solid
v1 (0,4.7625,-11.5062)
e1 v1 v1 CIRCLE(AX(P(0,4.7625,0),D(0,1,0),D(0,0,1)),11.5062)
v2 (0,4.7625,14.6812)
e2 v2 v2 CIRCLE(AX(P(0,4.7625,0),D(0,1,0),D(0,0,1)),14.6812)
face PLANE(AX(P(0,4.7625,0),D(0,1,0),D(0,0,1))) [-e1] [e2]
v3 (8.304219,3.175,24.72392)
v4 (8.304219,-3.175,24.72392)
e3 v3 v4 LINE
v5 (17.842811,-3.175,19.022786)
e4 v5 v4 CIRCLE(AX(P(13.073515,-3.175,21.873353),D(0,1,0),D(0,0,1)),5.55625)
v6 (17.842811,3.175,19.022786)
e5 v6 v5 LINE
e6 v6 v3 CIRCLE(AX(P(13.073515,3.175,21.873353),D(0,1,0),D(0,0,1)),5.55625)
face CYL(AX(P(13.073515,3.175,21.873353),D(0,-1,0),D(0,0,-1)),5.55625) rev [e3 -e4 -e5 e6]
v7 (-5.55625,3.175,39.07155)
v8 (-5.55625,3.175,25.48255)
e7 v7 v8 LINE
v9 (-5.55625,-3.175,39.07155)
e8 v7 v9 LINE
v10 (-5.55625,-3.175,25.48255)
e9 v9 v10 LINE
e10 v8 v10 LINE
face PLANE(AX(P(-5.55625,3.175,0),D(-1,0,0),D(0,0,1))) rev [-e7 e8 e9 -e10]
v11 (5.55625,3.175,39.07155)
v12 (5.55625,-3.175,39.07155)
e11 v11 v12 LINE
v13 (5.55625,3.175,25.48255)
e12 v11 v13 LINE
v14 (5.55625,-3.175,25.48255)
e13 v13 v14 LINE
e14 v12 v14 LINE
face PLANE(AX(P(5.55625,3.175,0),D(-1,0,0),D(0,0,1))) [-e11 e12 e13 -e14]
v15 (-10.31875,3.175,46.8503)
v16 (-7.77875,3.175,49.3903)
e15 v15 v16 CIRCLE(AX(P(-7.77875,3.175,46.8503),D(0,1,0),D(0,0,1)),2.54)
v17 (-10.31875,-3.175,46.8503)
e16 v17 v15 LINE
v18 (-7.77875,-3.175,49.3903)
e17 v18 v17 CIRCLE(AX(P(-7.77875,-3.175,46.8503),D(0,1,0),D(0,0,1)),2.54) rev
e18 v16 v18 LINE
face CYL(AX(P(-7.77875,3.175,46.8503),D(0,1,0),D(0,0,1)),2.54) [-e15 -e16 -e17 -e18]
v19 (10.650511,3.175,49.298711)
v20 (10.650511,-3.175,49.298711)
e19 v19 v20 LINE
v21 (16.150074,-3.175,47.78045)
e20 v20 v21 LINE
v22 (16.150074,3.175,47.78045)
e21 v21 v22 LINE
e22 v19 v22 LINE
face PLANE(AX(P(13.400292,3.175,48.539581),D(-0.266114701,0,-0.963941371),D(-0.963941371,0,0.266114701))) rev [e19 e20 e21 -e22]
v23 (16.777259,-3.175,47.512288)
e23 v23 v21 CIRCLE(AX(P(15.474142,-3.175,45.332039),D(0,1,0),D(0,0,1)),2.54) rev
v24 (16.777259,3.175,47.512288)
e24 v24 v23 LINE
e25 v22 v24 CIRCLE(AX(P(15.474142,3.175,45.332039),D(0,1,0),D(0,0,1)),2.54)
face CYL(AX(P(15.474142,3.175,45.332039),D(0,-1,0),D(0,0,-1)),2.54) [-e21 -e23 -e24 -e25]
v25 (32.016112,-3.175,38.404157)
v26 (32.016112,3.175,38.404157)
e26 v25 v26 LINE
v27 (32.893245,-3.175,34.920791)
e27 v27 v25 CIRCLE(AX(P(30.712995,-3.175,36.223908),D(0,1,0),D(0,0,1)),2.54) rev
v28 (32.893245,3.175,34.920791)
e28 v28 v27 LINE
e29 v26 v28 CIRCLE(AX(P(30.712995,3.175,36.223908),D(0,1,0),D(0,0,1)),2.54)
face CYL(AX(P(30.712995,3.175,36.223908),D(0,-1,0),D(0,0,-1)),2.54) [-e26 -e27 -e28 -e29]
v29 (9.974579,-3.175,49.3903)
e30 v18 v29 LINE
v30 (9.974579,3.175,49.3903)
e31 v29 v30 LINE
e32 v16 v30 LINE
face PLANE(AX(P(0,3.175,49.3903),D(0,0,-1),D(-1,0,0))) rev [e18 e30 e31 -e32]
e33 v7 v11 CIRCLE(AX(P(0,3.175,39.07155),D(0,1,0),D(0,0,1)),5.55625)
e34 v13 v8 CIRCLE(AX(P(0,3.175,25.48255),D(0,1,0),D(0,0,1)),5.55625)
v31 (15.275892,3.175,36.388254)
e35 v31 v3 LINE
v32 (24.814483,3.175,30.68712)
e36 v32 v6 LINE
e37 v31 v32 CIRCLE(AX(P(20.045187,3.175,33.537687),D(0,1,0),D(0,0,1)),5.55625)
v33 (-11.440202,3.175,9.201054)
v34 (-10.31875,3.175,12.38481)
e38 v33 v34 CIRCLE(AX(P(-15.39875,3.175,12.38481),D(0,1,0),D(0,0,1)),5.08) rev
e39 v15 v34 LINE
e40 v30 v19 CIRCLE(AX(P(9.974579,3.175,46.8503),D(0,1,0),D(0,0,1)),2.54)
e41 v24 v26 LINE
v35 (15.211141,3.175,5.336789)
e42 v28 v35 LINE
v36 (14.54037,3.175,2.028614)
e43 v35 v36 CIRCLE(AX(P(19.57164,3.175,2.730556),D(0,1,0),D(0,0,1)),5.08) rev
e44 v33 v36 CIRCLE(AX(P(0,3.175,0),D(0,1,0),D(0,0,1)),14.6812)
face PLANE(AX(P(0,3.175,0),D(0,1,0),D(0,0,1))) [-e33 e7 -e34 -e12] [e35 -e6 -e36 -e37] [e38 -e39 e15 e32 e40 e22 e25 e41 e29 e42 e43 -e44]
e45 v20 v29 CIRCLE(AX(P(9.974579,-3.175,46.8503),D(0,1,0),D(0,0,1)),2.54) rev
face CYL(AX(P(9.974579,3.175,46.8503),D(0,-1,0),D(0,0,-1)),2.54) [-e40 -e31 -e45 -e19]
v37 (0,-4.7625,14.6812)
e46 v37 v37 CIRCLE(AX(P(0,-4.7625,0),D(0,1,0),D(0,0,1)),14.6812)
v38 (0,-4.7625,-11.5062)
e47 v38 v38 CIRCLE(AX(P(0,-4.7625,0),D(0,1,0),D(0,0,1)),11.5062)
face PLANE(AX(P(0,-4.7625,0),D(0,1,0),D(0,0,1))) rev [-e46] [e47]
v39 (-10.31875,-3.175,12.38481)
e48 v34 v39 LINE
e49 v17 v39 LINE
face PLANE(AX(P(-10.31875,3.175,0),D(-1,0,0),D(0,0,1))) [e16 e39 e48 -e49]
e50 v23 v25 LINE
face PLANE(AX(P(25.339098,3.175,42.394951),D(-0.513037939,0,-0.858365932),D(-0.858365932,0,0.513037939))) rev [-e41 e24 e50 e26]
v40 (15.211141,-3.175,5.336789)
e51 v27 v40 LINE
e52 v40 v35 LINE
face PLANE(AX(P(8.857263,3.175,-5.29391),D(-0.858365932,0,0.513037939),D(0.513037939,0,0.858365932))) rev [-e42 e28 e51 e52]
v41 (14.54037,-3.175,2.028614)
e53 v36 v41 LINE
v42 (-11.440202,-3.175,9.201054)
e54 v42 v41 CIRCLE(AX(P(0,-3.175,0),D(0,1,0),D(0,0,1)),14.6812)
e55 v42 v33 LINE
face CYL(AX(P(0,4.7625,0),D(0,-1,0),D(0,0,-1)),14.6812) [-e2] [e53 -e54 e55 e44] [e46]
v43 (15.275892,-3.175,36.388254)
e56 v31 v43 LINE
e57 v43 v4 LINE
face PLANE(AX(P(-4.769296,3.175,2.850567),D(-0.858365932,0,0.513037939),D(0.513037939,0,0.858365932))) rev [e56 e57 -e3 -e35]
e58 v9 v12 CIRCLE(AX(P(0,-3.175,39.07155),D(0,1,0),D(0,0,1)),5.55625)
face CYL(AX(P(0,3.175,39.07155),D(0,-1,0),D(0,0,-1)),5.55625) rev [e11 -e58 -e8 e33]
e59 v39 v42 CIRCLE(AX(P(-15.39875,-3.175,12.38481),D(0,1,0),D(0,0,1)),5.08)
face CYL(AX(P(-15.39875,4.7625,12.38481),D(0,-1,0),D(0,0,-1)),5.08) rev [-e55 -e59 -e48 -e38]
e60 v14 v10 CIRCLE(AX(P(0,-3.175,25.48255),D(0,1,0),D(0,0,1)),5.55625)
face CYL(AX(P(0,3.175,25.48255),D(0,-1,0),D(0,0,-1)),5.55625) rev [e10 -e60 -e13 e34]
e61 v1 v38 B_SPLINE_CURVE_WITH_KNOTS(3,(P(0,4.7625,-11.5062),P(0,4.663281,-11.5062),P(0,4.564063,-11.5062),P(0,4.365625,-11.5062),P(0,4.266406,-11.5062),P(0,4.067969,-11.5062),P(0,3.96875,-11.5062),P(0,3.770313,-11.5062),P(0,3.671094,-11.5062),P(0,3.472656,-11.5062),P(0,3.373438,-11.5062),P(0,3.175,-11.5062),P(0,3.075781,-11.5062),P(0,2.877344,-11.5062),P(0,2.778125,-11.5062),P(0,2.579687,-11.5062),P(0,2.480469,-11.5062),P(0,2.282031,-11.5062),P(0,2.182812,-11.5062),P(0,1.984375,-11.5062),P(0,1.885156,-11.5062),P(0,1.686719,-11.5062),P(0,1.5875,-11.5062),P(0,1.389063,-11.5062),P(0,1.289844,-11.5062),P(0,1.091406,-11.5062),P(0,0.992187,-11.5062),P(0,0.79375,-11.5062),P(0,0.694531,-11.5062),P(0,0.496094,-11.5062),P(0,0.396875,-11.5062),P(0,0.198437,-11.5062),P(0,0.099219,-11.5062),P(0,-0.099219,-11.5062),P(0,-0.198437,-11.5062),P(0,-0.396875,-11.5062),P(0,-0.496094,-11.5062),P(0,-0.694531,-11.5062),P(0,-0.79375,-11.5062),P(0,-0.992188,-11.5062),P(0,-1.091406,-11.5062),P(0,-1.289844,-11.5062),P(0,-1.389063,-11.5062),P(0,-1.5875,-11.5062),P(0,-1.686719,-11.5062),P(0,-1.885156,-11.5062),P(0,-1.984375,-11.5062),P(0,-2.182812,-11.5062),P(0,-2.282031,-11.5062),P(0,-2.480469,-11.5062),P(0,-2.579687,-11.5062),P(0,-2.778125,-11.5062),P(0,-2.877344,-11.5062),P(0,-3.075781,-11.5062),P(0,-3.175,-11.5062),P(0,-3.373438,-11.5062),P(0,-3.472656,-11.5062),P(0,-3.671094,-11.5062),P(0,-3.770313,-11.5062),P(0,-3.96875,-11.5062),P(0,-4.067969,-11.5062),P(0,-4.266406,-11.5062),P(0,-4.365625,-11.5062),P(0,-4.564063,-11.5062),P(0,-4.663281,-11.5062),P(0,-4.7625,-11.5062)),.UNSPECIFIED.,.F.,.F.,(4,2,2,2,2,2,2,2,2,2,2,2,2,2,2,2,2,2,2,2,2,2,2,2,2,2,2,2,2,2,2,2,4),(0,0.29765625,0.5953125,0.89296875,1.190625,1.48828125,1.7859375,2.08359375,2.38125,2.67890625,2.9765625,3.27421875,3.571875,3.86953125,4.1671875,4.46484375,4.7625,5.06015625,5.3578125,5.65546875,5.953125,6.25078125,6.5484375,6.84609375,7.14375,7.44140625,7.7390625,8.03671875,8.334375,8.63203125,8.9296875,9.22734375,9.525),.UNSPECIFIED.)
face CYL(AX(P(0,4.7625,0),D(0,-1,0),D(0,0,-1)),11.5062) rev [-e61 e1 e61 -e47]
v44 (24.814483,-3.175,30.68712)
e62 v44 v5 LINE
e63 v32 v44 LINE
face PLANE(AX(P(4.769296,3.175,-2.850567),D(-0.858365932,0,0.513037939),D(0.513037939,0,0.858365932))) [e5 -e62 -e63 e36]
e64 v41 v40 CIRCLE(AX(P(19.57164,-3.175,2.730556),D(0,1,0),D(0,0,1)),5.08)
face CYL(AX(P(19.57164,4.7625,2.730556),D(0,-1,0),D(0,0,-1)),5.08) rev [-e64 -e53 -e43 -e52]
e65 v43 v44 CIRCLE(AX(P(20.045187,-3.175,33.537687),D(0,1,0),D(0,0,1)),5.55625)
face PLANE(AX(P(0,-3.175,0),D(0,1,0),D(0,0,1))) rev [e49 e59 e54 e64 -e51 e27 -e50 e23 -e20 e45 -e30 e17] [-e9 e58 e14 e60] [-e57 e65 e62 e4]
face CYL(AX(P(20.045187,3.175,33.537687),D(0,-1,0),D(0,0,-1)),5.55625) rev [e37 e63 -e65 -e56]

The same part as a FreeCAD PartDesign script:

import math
import FreeCAD as App
import Part
import Sketcher
from FreeCAD import Vector
Q = App.Units.Quantity


def edges_at(feature, points):
    """Names of the edges that pass closest to the given points."""
    edges = feature.Shape.Edges
    near = lambda p: min(range(len(edges)), key=lambda i: edges[i].distToShape(Part.Vertex(*p))[0])
    return sorted({f"Edge{near(p) + 1}" for p in points})

doc = App.newDocument("Part")
params = doc.addObject("Spreadsheet::Sheet", "Params")
for row, (alias, value) in enumerate([
    ("sketch1_diameter", "1.156 in"),
    ("sketch1_diameter2", "0.906 in"),
    ("pad1_length", "0.375 in"),
    ("sketch2_radius", "0.578 in"),
    ("sketch2_radius2", "0.21875 in"),
    ("sketch2_radius3", "0.21875 in"),
    ("sketch2_radius4", "0.21875 in"),
    ("sketch2_width", "0.8125 in"),
    ("pad2_length", "0.25 in"),
    ("fillet_radius", "0.2 in"),
    ("fillet2_radius", "0.1 in"),
], start=1):
    params.set(f"A{row}", alias)
    params.set(f"B{row}", "=" + value)
    params.setAlias(f"B{row}", alias)

body = doc.addObject("PartDesign::Body", "Body")

# Sketch on XZ plane
sketch1 = doc.addObject("Sketcher::SketchObject", "Sketch")
body.addObject(sketch1)
sketch1.AttachmentSupport = (doc.XZ_Plane, [""])
sketch1.MapMode = "FlatFace"
sketch1.addGeometry([
    Part.Circle(Vector(0, 0, 0), Vector(0, 0, 1), 14.6812),
    Part.Circle(Vector(0, 0, 0), Vector(0, 0, 1), 11.5062),
], False)
sketch1.addConstraint([
    Sketcher.Constraint("Coincident", 0, 3, -1, 1),
    Sketcher.Constraint("Coincident", 1, 3, -1, 1),
    Sketcher.Constraint("Diameter", 0, Q("1.156 in")),
    Sketcher.Constraint("Diameter", 1, Q("0.906 in")),
])
sketch1.setExpression("Constraints[2]", "Params.sketch1_diameter")
sketch1.setExpression("Constraints[3]", "Params.sketch1_diameter2")
pad1 = doc.addObject("PartDesign::Pad", "Pad")
body.addObject(pad1)
pad1.Profile = sketch1
pad1.setExpression("Length", "Params.pad1_length")
pad1.Midplane = True

# Sketch on XZ plane
sketch2 = doc.addObject("Sketcher::SketchObject", "Sketch001")
body.addObject(sketch2)
sketch2.AttachmentSupport = (doc.XZ_Plane, [""])
sketch2.MapMode = "FlatFace"
sketch2.addGeometry([
    Part.LineSegment(Vector(-10.31875, 10.443229, 0), Vector(-10.31875, 49.3903, 0)),  # 0
    Part.LineSegment(Vector(-10.31875, 49.3903, 0), Vector(10.31875, 49.3903, 0)),  # 1
    Part.LineSegment(Vector(10.31875, 49.3903, 0), Vector(16.481834, 47.688861, 0)),  # 2
    Part.LineSegment(Vector(16.481834, 47.688861, 0), Vector(34.196361, 37.101041, 0)),  # 3
    Part.LineSegment(Vector(34.196361, 37.101041, 0), Vector(14.215036, 3.670202, 0)),  # 4
    Part.ArcOfCircle(Part.Circle(Vector(0, 0, 0), Vector(0, 0, 1), 14.6812), math.radians(14.477116), math.radians(134.656486)),  # 5
    Part.LineSegment(Vector(5.55625, 25.48255, 0), Vector(5.55625, 39.07155, 0)),  # 6
    Part.ArcOfCircle(Part.Circle(Vector(0, 39.07155, 0), Vector(0, 0, 1), 5.55625), math.radians(0), math.radians(180)),  # 7
    Part.LineSegment(Vector(-5.55625, 39.07155, 0), Vector(-5.55625, 25.48255, 0)),  # 8
    Part.ArcOfCircle(Part.Circle(Vector(0, 25.48255, 0), Vector(0, 0, 1), 5.55625), math.radians(180), math.radians(360)),  # 9
    Part.LineSegment(Vector(17.842811, 19.022786, 0), Vector(24.814483, 30.68712, 0)),  # 10
    Part.ArcOfCircle(Part.Circle(Vector(20.045187, 33.537687, 0), Vector(0, 0, 1), 5.55625), math.radians(-30.866398), math.radians(149.133602)),  # 11
    Part.LineSegment(Vector(15.275892, 36.388254, 0), Vector(8.304219, 24.72392, 0)),  # 12
    Part.ArcOfCircle(Part.Circle(Vector(13.073515, 21.873353, 0), Vector(0, 0, 1), 5.55625), math.radians(149.133602), math.radians(329.133602)),  # 13
], False)
sketch2.addConstraint([
    Sketcher.Constraint("Coincident", 0, 2, 1, 1),
    Sketcher.Constraint("Coincident", 1, 2, 2, 1),
    Sketcher.Constraint("Coincident", 2, 2, 3, 1),
    Sketcher.Constraint("Coincident", 3, 2, 4, 1),
    Sketcher.Constraint("Coincident", 4, 2, 5, 1),
    Sketcher.Constraint("Coincident", 5, 2, 0, 1),
    Sketcher.Constraint("Coincident", 6, 2, 7, 1),
    Sketcher.Constraint("Coincident", 7, 2, 8, 1),
    Sketcher.Constraint("Coincident", 8, 2, 9, 1),
    Sketcher.Constraint("Coincident", 9, 2, 6, 1),
    Sketcher.Constraint("Coincident", 10, 2, 11, 1),
    Sketcher.Constraint("Coincident", 11, 2, 12, 1),
    Sketcher.Constraint("Coincident", 12, 2, 13, 1),
    Sketcher.Constraint("Coincident", 13, 2, 10, 1),
    Sketcher.Constraint("Vertical", 0),
    Sketcher.Constraint("Horizontal", 1),
    Sketcher.Constraint("Vertical", 6),
    Sketcher.Constraint("Vertical", 8),
    Sketcher.Constraint("Coincident", 5, 3, -1, 1),
    Sketcher.Constraint("PointOnObject", 7, 3, -2),
    Sketcher.Constraint("Radius", 5, Q("0.578 in")),
    Sketcher.Constraint("Radius", 7, Q("0.21875 in")),
    Sketcher.Constraint("Radius", 11, Q("0.21875 in")),
    Sketcher.Constraint("Radius", 13, Q("0.21875 in")),
    Sketcher.Constraint("DistanceX", 1, 1, 1, 2, Q("0.8125 in")),
    Sketcher.Constraint("DistanceY", 6, 1, 6, 2, Q("0.535 in")),
    Sketcher.Constraint("DistanceY", 8, 2, 8, 1, Q("0.535 in")),
    Sketcher.Constraint("Distance", 3, Q("0.8125 in")),
    Sketcher.Constraint("Distance", 10, Q("0.535 in")),
    Sketcher.Constraint("Distance", 12, Q("0.535 in")),
    Sketcher.Constraint("DistanceX", 0, 2, -1, 1, Q("0.40625 in")),
    Sketcher.Constraint("DistanceY", 9, 3, 7, 3, Q("0.535 in")),
    Sketcher.Constraint("DistanceY", 7, 3, 0, 2, Q("0.40625 in")),
    Sketcher.Constraint("DistanceY", 6, 2, 1, 2, Q("0.40625 in")),
    Sketcher.Constraint("DistanceY", 7, 2, 0, 2, Q("0.40625 in")),
    Sketcher.Constraint("DistanceY", -1, 1, 0, 2, Q("1.9445 in")),
    Sketcher.Constraint("DistanceY", -1, 1, 4, 2, 3.670202),
    Sketcher.Constraint("DistanceY", 13, 2, 11, 3, 14.514902),
    Sketcher.Constraint("Distance", 2, 6.39363),
    Sketcher.Constraint("Distance", 4, 38.947071),
    Sketcher.Constraint("DistanceY", -1, 1, 2, 2, 47.688861),
    Sketcher.Constraint("DistanceY", -1, 1, 10, 2, 30.68712),
    Sketcher.Constraint("DistanceX", -1, 1, 11, 2, 15.275892),
    Sketcher.Constraint("DistanceX", -1, 1, 12, 2, 8.304219),
    Sketcher.Constraint("DistanceY", -1, 1, 12, 2, 24.72392),
    Sketcher.Constraint("DistanceX", 13, 3, 2, 2, 3.408319),
])
sketch2.setExpression("Constraints[20]", "Params.sketch2_radius")
sketch2.setExpression("Constraints[21]", "Params.sketch2_radius2")
sketch2.setExpression("Constraints[22]", "Params.sketch2_radius3")
sketch2.setExpression("Constraints[23]", "Params.sketch2_radius4")
sketch2.setExpression("Constraints[24]", "Params.sketch2_width")
pad2 = doc.addObject("PartDesign::Pad", "Pad001")
body.addObject(pad2)
pad2.Profile = sketch2
pad2.setExpression("Length", "Params.pad2_length")
pad2.Midplane = True
doc.recompute()

fillet = doc.addObject("PartDesign::Fillet", "Fillet")
body.addObject(fillet)
fillet.Base = (pad2, edges_at(pad2, [(14.215, 0, 3.67), (-10.319, 0, 10.443)]))
fillet.setExpression("Radius", "Params.fillet_radius")
doc.recompute()

fillet2 = doc.addObject("PartDesign::Fillet", "Fillet001")
body.addObject(fillet2)
fillet2.Base = (fillet, edges_at(fillet, [
    (-10.319, 0, 49.39),
    (10.319, 0, 49.39),
    (16.482, 0, 47.689),
    (34.196, 0, 37.101),
]))
fillet2.setExpression("Radius", "Params.fillet2_radius")

doc.recompute()
